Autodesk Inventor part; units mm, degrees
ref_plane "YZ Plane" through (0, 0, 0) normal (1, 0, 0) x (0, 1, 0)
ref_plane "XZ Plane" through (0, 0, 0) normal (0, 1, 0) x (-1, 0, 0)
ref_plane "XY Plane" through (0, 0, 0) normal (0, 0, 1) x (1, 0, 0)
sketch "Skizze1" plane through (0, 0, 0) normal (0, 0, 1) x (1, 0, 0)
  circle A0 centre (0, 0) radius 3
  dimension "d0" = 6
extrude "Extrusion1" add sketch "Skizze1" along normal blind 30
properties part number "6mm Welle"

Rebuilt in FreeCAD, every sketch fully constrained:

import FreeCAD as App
import Part
import Sketcher
from FreeCAD import Vector
Q = App.Units.Quantity

doc = App.newDocument("Part")
body = doc.addObject("PartDesign::Body", "Body")

sketch1 = doc.addObject("Sketcher::SketchObject", "Sketch")
body.addObject(sketch1)
sketch1.AttachmentSupport = (doc.XY_Plane, [""])
sketch1.MapMode = "FlatFace"
sketch1.addGeometry(Part.Circle(Vector(0, 0, 0), Vector(0, 0, 1), 3), False)
sketch1.addConstraint([
    Sketcher.Constraint("Coincident", 0, 3, -1, 1),
    Sketcher.Constraint("Diameter", 0, Q("6 mm")),
])
pad1 = doc.addObject("PartDesign::Pad", "Pad")
body.addObject(pad1)
pad1.Profile = sketch1
pad1.Length = 30

doc.recompute()
